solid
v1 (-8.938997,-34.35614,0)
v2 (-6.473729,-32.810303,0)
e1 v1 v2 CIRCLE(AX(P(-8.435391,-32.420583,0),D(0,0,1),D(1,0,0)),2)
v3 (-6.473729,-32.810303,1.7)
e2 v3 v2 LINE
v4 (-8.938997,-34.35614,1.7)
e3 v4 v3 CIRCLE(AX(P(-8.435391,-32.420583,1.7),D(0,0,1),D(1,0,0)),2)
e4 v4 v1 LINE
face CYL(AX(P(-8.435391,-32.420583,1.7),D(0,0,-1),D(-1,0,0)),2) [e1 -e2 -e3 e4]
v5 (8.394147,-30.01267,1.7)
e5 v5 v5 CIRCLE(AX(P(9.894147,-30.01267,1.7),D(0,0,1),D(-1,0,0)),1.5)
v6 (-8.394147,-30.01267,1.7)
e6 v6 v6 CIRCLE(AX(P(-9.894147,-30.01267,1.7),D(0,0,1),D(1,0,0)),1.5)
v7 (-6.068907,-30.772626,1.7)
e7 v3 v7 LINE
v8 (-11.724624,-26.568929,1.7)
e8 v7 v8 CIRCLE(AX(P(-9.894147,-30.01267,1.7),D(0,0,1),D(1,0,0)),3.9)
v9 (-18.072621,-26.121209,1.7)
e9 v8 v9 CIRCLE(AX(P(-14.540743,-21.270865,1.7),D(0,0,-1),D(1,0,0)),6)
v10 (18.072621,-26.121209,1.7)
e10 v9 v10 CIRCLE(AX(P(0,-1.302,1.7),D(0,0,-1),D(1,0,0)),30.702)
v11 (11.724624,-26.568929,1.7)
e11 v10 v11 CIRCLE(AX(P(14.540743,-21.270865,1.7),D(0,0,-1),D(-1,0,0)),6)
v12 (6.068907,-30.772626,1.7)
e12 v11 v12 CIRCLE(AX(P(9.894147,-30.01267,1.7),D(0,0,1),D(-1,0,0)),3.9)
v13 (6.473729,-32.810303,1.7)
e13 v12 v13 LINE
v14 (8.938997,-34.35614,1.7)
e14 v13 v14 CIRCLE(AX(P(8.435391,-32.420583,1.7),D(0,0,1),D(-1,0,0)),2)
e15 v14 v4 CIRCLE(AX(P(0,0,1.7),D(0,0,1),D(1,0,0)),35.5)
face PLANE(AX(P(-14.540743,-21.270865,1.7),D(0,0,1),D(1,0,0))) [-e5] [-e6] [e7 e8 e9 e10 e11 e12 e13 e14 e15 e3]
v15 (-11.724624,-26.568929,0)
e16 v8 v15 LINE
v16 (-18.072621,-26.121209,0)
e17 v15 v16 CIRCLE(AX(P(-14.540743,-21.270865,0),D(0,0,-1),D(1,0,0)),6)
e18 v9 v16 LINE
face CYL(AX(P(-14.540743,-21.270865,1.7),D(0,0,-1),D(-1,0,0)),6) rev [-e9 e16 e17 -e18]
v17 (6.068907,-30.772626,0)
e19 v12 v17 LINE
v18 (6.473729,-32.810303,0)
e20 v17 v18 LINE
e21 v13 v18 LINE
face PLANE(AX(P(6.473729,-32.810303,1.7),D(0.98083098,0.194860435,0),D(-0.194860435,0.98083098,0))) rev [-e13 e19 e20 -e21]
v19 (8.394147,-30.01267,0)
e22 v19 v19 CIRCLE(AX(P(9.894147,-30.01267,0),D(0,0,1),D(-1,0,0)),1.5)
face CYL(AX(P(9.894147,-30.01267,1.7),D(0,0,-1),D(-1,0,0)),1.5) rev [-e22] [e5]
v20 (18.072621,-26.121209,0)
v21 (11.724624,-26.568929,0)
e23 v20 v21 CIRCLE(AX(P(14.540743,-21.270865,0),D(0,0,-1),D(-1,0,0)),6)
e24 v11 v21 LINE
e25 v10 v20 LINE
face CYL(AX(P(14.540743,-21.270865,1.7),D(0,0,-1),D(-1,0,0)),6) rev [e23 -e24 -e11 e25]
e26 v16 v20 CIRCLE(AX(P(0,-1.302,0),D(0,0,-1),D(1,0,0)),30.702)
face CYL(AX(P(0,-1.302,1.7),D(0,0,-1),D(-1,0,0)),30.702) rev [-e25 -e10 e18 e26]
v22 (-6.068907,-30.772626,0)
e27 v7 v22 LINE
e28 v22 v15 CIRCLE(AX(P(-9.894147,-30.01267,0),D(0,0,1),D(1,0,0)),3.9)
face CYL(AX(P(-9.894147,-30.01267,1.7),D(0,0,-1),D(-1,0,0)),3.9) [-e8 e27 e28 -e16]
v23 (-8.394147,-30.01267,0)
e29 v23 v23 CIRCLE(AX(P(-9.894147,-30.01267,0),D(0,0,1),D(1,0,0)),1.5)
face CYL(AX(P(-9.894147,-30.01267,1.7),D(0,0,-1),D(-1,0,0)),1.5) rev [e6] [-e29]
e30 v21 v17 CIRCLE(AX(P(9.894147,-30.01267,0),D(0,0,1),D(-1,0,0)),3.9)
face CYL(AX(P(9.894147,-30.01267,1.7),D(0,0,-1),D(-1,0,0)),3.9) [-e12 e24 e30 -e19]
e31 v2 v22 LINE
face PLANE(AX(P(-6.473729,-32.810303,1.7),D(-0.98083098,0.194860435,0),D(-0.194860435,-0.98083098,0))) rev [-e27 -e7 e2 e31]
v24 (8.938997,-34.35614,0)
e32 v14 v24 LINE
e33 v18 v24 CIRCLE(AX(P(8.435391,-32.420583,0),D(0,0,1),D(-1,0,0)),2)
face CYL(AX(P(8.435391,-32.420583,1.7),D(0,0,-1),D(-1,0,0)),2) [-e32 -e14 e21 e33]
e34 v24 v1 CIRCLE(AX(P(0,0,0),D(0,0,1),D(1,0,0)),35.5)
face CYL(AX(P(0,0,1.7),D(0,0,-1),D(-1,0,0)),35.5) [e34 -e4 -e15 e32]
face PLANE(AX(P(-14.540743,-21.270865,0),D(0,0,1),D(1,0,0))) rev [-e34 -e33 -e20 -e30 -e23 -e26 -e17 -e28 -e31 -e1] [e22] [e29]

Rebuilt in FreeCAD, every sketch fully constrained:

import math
import FreeCAD as App
import Part
import Sketcher
from FreeCAD import Vector

doc = App.newDocument("Part")
body = doc.addObject("PartDesign::Body", "Body")

# Sketch on XY plane
sketch1 = body.newObject("Sketcher::SketchObject", "Sketch")
sketch1.AttachmentSupport = (doc.getObject("XY_Plane"), [""])
sketch1.MapMode = "FlatFace"
sketch1.addGeometry(Part.LineSegment(Vector(-6.473729, -32.810303, 0), Vector(-6.068907, -30.772626, 0)), False)
sketch1.addGeometry(Part.ArcOfCircle(Part.Circle(Vector(-9.894147, -30.01267, 0), Vector(0, 0, 1), 3.9), math.radians(-11.236571), math.radians(117.99231)), False)
sketch1.addGeometry(Part.ArcOfCircle(Part.Circle(Vector(-14.540743, -21.270865, 0), Vector(0, 0, 1), 6), math.radians(-126.06101), math.radians(-62.00769)), False)
sketch1.addGeometry(Part.ArcOfCircle(Part.Circle(Vector(0, -1.302, 0), Vector(0, 0, 1), 30.702), math.radians(-53.93899), math.radians(233.93899)), False)
sketch1.addGeometry(Part.ArcOfCircle(Part.Circle(Vector(14.540743, -21.270865, 0), Vector(0, 0, 1), 6), math.radians(-117.99231), math.radians(-53.93899)), False)
sketch1.addGeometry(Part.ArcOfCircle(Part.Circle(Vector(9.894147, -30.01267, 0), Vector(0, 0, 1), 3.9), math.radians(62.00769), math.radians(191.236571)), False)
sketch1.addGeometry(Part.LineSegment(Vector(6.068907, -30.772626, 0), Vector(6.473729, -32.810303, 0)), False)
sketch1.addGeometry(Part.ArcOfCircle(Part.Circle(Vector(8.435391, -32.420583, 0), Vector(0, 0, 1), 2), math.radians(-168.763429), math.radians(-75.415786)), False)
sketch1.addGeometry(Part.ArcOfCircle(Part.Circle(Vector(0, 0, 0), Vector(0, 0, 1), 35.5), math.radians(-75.415786), math.radians(255.415786)), False)
sketch1.addGeometry(Part.ArcOfCircle(Part.Circle(Vector(-8.435391, -32.420583, 0), Vector(0, 0, 1), 2), math.radians(-104.584214), math.radians(-11.236571)), False)
sketch1.addGeometry(Part.Circle(Vector(-9.894147, -30.01267, 0), Vector(0, 0, 1), 1.5), False)
sketch1.addGeometry(Part.Circle(Vector(9.894147, -30.01267, 0), Vector(0, 0, 1), 1.5), False)
sketch1.addConstraint(Sketcher.Constraint("Tangent", 0, 2, 1, 1))
sketch1.addConstraint(Sketcher.Constraint("Tangent", 1, 2, 2, 2))
sketch1.addConstraint(Sketcher.Constraint("Tangent", 2, 1, 3, 2))
sketch1.addConstraint(Sketcher.Constraint("Tangent", 3, 1, 4, 2))
sketch1.addConstraint(Sketcher.Constraint("Tangent", 4, 1, 5, 1))
sketch1.addConstraint(Sketcher.Constraint("Tangent", 5, 2, 6, 1))
sketch1.addConstraint(Sketcher.Constraint("Tangent", 6, 2, 7, 1))
sketch1.addConstraint(Sketcher.Constraint("Tangent", 7, 2, 8, 1))
sketch1.addConstraint(Sketcher.Constraint("Tangent", 8, 2, 9, 1))
sketch1.addConstraint(Sketcher.Constraint("Tangent", 9, 2, 0, 1))
sketch1.addConstraint(Sketcher.Constraint("Coincident", 8, 3, -1, 1))
sketch1.addConstraint(Sketcher.Constraint("Coincident", 10, 3, 1, 3))
sketch1.addConstraint(Sketcher.Constraint("Coincident", 11, 3, 5, 3))
sketch1.addConstraint(Sketcher.Constraint("Equal", 2, 4))
sketch1.addConstraint(Sketcher.Constraint("Equal", 1, 5))
sketch1.addConstraint(Sketcher.Constraint("Equal", 7, 9))
sketch1.addConstraint(Sketcher.Constraint("Equal", 10, 11))
sketch1.addConstraint(Sketcher.Constraint("Symmetric", 2, 3, 4, 3, -2))
sketch1.addConstraint(Sketcher.Constraint("Symmetric", 0, 2, 5, 2, -2))
sketch1.addConstraint(Sketcher.Constraint("Diameter", 10, 3.0))
sketch1.addConstraint(Sketcher.Constraint("Radius", 2, 6.0))
sketch1.addConstraint(Sketcher.Constraint("Radius", 7, 2.0))
sketch1.addConstraint(Sketcher.Constraint("Radius", 1, 3.9))
sketch1.addConstraint(Sketcher.Constraint("Radius", 8, 35.5))
sketch1.addConstraint(Sketcher.Constraint("Radius", 3, 30.702))
sketch1.addConstraint(Sketcher.Constraint("DistanceY", 3, 3, -1, 1, 1.302))
sketch1.addConstraint(Sketcher.Constraint("Distance", 0, 2.077501))
sketch1.addConstraint(Sketcher.Constraint("DistanceY", 1, 3, -1, 1, 30.01267))
sketch1.addConstraint(Sketcher.Constraint("DistanceX", -1, 1, 7, 3, 8.435391))
pad1 = body.newObject("PartDesign::Pad", "Pad")
pad1.Profile = sketch1
pad1.Length = 1.7

doc.recompute()
